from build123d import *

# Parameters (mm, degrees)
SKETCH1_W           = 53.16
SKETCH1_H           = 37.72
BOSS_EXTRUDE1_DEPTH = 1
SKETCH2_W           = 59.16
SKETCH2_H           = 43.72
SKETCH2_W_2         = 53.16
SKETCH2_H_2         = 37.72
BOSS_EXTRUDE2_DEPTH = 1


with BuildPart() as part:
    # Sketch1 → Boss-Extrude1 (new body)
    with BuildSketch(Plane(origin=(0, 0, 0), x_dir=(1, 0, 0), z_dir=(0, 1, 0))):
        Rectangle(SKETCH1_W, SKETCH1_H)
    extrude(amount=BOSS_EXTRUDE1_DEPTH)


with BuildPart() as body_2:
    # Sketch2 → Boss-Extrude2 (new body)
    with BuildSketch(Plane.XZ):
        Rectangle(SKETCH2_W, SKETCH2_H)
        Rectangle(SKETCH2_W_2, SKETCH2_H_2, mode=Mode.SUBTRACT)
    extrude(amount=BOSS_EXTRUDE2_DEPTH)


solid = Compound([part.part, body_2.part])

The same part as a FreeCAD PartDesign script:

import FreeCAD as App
import Part
import Sketcher
from FreeCAD import Vector


def add_polygon(sketch, points):
    """Adds a closed chain of lines whose ends are joined by coincident constraints."""
    first, n = sketch.GeometryCount, len(points)
    for a, b in zip(points, points[1:] + points[:1]):
        sketch.addGeometry(Part.LineSegment(App.Vector(*a, 0), App.Vector(*b, 0)), False)
    for i in range(n):
        sketch.addConstraint(Sketcher.Constraint("Coincident", first + i, 2, first + (i + 1) % n, 1))

doc = App.newDocument("Part")
body = doc.addObject("PartDesign::Body", "Body")

sketch1 = body.newObject("Sketcher::SketchObject", "Sketch")
sketch1.AttachmentSupport = (doc.getObject("XZ_Plane"), [""])
sketch1.MapMode = "FlatFace"
add_polygon(sketch1, [(-27, -19), (-27, 19), (27, 19), (27, -19)])
sketch1.addConstraint([
    Sketcher.Constraint("Vertical", 0),
    Sketcher.Constraint("Horizontal", 1),
    Sketcher.Constraint("Vertical", 2),
    Sketcher.Constraint("Horizontal", 3),
    Sketcher.Constraint("Symmetric", 0, 2, 2, 2, -1, 1),
    Sketcher.Constraint("DistanceX", 1, 1, 1, 2, 53.16),
    Sketcher.Constraint("DistanceY", 0, 1, 0, 2, 37.72),
])
pad1 = body.newObject("PartDesign::Pad", "Pad")
pad1.Profile = sketch1
pad1.Length = 1
pad1.Reversed = True
body2 = doc.addObject("PartDesign::Body", "Body001")

sketch2 = body2.newObject("Sketcher::SketchObject", "Sketch001")
sketch2.AttachmentSupport = (doc.getObject("XZ_Plane001"), [""])
sketch2.MapMode = "FlatFace"
add_polygon(sketch2, [(-30, 22), (-30, -22), (30, -22), (30, 22)])
add_polygon(sketch2, [(27, -19), (-27, -19), (-27, 19), (27, 19)])
sketch2.addConstraint([
    Sketcher.Constraint("Vertical", 0),
    Sketcher.Constraint("Horizontal", 1),
    Sketcher.Constraint("Vertical", 2),
    Sketcher.Constraint("Horizontal", 3),
    Sketcher.Constraint("Horizontal", 4),
    Sketcher.Constraint("Vertical", 5),
    Sketcher.Constraint("Horizontal", 6),
    Sketcher.Constraint("Vertical", 7),
    Sketcher.Constraint("Symmetric", 0, 2, 2, 2, -1, 1),
    Sketcher.Constraint("Symmetric", 4, 2, 6, 2, -1, 1),
    Sketcher.Constraint("DistanceX", 0, 2, 4, 2, 3.0),
    Sketcher.Constraint("DistanceY", 0, 2, 4, 2, 3.0),
    Sketcher.Constraint("DistanceX", 1, 1, 1, 2, 59.16),
    Sketcher.Constraint("DistanceY", 0, 2, 0, 1, 43.72),
])
pad2 = body2.newObject("PartDesign::Pad", "Pad001")
pad2.Profile = sketch2
pad2.Length = 1

doc.recompute()
